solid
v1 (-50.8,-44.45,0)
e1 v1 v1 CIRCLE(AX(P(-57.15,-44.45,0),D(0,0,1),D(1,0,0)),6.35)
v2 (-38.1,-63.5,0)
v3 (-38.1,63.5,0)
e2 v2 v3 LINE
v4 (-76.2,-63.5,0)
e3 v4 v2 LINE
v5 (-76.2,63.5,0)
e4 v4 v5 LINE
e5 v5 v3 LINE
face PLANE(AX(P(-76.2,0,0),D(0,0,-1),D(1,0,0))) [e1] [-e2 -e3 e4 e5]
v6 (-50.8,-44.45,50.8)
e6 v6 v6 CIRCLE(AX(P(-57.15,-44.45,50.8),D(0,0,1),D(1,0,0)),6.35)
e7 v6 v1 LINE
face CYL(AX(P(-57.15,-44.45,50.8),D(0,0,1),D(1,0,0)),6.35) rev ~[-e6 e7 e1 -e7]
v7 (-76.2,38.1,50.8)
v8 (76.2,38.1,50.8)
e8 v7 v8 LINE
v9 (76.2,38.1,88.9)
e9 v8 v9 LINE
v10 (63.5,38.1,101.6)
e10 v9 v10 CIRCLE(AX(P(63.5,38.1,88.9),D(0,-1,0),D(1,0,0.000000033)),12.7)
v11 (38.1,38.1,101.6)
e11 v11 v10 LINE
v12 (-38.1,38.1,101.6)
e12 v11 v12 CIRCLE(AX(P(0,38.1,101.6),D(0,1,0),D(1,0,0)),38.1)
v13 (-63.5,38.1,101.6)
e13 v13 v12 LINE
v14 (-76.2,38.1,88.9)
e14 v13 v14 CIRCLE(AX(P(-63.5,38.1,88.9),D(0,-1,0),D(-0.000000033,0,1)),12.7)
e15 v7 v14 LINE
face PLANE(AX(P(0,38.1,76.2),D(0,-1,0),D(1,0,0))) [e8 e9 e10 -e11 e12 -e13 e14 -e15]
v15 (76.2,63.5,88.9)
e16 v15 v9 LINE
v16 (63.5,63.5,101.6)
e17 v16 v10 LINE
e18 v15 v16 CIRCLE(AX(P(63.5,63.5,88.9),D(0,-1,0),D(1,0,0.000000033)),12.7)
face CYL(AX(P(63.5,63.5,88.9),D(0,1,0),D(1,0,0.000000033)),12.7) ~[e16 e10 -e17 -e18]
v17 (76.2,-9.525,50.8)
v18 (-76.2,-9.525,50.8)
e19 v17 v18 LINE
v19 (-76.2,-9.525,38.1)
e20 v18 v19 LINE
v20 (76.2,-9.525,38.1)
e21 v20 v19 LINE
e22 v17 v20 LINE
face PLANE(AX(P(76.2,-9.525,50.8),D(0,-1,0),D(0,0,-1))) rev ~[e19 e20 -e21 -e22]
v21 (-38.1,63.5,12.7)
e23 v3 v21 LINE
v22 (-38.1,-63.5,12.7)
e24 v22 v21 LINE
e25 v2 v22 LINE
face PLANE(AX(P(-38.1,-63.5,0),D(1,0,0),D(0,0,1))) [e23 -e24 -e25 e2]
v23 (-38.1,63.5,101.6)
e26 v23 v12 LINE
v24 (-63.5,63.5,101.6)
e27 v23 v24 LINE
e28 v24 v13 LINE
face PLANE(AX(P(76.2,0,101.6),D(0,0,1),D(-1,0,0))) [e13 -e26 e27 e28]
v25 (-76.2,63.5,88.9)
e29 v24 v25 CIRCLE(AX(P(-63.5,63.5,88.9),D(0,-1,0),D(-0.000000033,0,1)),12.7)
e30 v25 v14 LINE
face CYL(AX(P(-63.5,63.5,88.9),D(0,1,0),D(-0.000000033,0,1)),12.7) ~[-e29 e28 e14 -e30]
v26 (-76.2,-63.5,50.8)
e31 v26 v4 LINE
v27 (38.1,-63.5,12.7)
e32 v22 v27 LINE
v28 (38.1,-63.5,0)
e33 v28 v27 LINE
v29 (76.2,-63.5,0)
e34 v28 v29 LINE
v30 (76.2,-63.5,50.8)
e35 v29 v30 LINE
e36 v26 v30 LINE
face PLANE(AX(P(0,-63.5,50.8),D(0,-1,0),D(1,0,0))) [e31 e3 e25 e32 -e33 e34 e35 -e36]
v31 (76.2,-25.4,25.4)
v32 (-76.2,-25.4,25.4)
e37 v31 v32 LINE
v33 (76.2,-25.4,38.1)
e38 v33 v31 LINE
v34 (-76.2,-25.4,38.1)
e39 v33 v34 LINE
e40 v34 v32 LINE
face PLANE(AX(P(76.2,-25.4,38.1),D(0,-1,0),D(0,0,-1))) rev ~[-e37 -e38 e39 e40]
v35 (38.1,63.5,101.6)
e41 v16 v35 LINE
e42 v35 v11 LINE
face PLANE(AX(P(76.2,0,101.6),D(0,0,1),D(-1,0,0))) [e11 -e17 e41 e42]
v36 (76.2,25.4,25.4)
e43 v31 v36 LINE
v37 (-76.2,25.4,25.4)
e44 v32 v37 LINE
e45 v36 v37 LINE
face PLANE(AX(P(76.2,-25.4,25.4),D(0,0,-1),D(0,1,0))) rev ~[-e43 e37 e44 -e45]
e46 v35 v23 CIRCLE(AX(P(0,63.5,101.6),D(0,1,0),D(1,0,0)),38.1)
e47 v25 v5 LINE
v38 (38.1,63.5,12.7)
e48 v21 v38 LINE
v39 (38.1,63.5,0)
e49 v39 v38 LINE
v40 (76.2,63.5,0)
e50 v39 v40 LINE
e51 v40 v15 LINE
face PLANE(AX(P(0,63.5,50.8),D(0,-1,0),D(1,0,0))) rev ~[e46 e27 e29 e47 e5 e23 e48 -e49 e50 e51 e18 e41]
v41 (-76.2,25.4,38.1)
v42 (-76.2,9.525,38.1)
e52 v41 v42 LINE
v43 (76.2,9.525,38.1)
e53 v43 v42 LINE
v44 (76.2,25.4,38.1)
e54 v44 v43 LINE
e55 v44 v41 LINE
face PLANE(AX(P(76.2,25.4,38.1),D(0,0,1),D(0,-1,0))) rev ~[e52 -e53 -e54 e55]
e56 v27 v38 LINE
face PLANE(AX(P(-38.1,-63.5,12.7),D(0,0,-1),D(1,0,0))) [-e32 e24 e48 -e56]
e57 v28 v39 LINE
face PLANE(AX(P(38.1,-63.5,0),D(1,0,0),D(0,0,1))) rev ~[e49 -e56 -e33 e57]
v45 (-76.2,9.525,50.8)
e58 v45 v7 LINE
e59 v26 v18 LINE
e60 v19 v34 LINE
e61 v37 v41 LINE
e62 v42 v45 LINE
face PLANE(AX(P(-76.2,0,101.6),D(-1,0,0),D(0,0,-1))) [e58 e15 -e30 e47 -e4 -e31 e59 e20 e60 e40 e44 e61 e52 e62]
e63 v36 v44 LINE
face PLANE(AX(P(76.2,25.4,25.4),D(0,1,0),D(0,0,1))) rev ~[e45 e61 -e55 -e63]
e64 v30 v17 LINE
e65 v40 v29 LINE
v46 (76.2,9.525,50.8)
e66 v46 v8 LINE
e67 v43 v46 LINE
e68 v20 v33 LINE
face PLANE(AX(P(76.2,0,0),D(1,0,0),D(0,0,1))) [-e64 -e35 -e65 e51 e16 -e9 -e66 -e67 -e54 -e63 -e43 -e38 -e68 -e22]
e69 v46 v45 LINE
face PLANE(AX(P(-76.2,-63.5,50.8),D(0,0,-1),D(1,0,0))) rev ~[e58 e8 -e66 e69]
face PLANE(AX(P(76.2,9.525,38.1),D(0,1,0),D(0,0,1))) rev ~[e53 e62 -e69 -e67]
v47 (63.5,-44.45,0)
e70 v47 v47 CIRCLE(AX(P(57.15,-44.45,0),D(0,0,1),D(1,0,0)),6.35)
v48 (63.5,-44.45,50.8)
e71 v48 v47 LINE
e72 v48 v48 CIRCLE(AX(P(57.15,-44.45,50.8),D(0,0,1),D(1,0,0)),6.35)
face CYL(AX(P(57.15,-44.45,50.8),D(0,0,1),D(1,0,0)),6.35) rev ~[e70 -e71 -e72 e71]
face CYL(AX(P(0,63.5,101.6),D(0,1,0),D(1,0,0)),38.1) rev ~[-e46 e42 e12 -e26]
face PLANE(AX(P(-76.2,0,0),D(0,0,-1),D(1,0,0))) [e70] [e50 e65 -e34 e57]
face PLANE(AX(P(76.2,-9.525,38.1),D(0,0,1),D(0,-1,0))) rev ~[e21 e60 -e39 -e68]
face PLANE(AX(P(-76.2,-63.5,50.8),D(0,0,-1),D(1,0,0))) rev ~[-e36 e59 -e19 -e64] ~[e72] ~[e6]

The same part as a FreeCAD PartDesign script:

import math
import FreeCAD as App
import Part
import Sketcher

V = App.Vector
Q = App.Units.Quantity


def add_polygon(sketch, points):
    """Adds a closed chain of lines whose ends are joined by coincident constraints."""
    first, n = sketch.GeometryCount, len(points)
    for a, b in zip(points, points[1:] + points[:1]):
        sketch.addGeometry(Part.LineSegment(App.Vector(*a, 0), App.Vector(*b, 0)), False)
    for i in range(n):
        sketch.addConstraint(Sketcher.Constraint("Coincident", first + i, 2, first + (i + 1) % n, 1))

doc = App.newDocument("Part")
body = doc.addObject("PartDesign::Body", "Body")

sketch1 = body.newObject("Sketcher::SketchObject", "Sketch")
sketch1.AttachmentSupport = (doc.getObject("XZ_Plane"), [""])
sketch1.MapMode = "FlatFace"
add_polygon(sketch1, [(-76, 0), (76, 0), (76, 102), (-76, 102)])
sketch1.addConstraint(Sketcher.Constraint("Horizontal", 0))
sketch1.addConstraint(Sketcher.Constraint("Vertical", 1))
sketch1.addConstraint(Sketcher.Constraint("Horizontal", 2))
sketch1.addConstraint(Sketcher.Constraint("Vertical", 3))
sketch1.addConstraint(Sketcher.Constraint("Symmetric", 0, 2, 3, 2, -1, 1))
sketch1.addConstraint(Sketcher.Constraint("DistanceX", 0, 1, 0, 2, Q("6 in")))
sketch1.addConstraint(Sketcher.Constraint("DistanceY", 1, 1, 1, 2, Q("4 in")))
pad1 = body.newObject("PartDesign::Pad", "Pad")
pad1.Profile = sketch1
pad1.Length = Q("5 in")
pad1.Midplane = True

sketch2 = body.newObject("Sketcher::SketchObject", "Sketch001")
sketch2.AttachmentSupport = (doc.getObject("XZ_Plane"), [""])
sketch2.MapMode = "FlatFace"
sketch2.AttachmentOffset = App.Placement(V(0, 0, 2.5 * 25.4), App.Rotation())
add_polygon(sketch2, [(-76, 102), (-76, 51), (76, 51), (76, 102)])
sketch2.addConstraint(Sketcher.Constraint("Vertical", 0))
sketch2.addConstraint(Sketcher.Constraint("Horizontal", 1))
sketch2.addConstraint(Sketcher.Constraint("Vertical", 2))
sketch2.addConstraint(Sketcher.Constraint("Horizontal", 3))
sketch2.addConstraint(Sketcher.Constraint("DistanceX", 1, 1, 1, 2, Q("6 in")))
sketch2.addConstraint(Sketcher.Constraint("DistanceY", 0, 2, 0, 1, Q("2 in")))
sketch2.addConstraint(Sketcher.Constraint("DistanceX", 0, 2, -1, 1, Q("3 in")))
sketch2.addConstraint(Sketcher.Constraint("DistanceY", -1, 1, 0, 2, Q("2 in")))
pocket1 = body.newObject("PartDesign::Pocket", "Pocket")
pocket1.Profile = sketch2
pocket1.Length = Q("4 in")

sketch3 = body.newObject("Sketcher::SketchObject", "Sketch002")
sketch3.AttachmentSupport = (doc.getObject("XZ_Plane"), [""])
sketch3.MapMode = "FlatFace"
sketch3.AttachmentOffset = App.Placement(V(0, 0, 2.5 * 25.4), App.Rotation())
add_polygon(sketch3, [(-38, 13), (-38, 0), (38, 0), (38, 13)])
sketch3.addConstraint(Sketcher.Constraint("Vertical", 0))
sketch3.addConstraint(Sketcher.Constraint("Horizontal", 1))
sketch3.addConstraint(Sketcher.Constraint("Vertical", 2))
sketch3.addConstraint(Sketcher.Constraint("Horizontal", 3))
sketch3.addConstraint(Sketcher.Constraint("Symmetric", 0, 2, 1, 2, -1, 1))
sketch3.addConstraint(Sketcher.Constraint("DistanceX", 1, 1, 1, 2, Q("3 in")))
sketch3.addConstraint(Sketcher.Constraint("DistanceY", 0, 2, 0, 1, Q("0.5 in")))
pocket2 = body.newObject("PartDesign::Pocket", "Pocket001")
pocket2.Profile = sketch3
pocket2.Length = Q("5 in")

sketch4 = body.newObject("Sketcher::SketchObject", "Sketch003")
sketch4.AttachmentSupport = (doc.getObject("YZ_Plane"), [""])
sketch4.MapMode = "FlatFace"
sketch4.AttachmentOffset = App.Placement(V(0, 0, 3 * 25.4), App.Rotation())
add_polygon(sketch4, [(10, 38), (10, 51), (-10, 51), (-10, 38), (-25, 38), (-25, 25), (25, 25), (25, 38)])
sketch4.addConstraint(Sketcher.Constraint("Vertical", 0))
sketch4.addConstraint(Sketcher.Constraint("Horizontal", 1))
sketch4.addConstraint(Sketcher.Constraint("Vertical", 2))
sketch4.addConstraint(Sketcher.Constraint("Horizontal", 3))
sketch4.addConstraint(Sketcher.Constraint("Vertical", 4))
sketch4.addConstraint(Sketcher.Constraint("Horizontal", 5))
sketch4.addConstraint(Sketcher.Constraint("Vertical", 6))
sketch4.addConstraint(Sketcher.Constraint("Horizontal", 7))
sketch4.addConstraint(Sketcher.Constraint("Symmetric", 3, 2, 6, 2, -2))
sketch4.addConstraint(Sketcher.Constraint("Equal", 3, 7))
sketch4.addConstraint(Sketcher.Constraint("Equal", 2, 4))
sketch4.addConstraint(Sketcher.Constraint("DistanceX", 5, 1, 5, 2, Q("2 in")))
sketch4.addConstraint(Sketcher.Constraint("DistanceY", 0, 1, 0, 2, Q("0.5 in")))
sketch4.addConstraint(Sketcher.Constraint("DistanceY", -1, 1, 0, 2, Q("2 in")))
sketch4.addConstraint(Sketcher.Constraint("DistanceX", 1, 2, 1, 1, Q("0.75 in")))
pocket3 = body.newObject("PartDesign::Pocket", "Pocket002")
pocket3.Profile = sketch4
pocket3.Length = Q("6 in")

sketch5 = body.newObject("Sketcher::SketchObject", "Sketch004")
sketch5.AttachmentSupport = (doc.getObject("XY_Plane"), [""])
sketch5.MapMode = "FlatFace"
sketch5.AttachmentOffset = App.Placement(V(0, 0, 2 * 25.4), App.Rotation())
sketch5.addGeometry(Part.Circle(V(-57, -44, 0), V(0, 0, 1), 6), False)
sketch5.addGeometry(Part.Circle(V(57, -44, 0), V(0, 0, 1), 6), False)
sketch5.addConstraint(Sketcher.Constraint("Equal", 0, 1))
sketch5.addConstraint(Sketcher.Constraint("Symmetric", 0, 3, 1, 3, -2))
sketch5.addConstraint(Sketcher.Constraint("Diameter", 0, Q("0.5 in")))
sketch5.addConstraint(Sketcher.Constraint("DistanceX", 0, 3, 1, 3, Q("4.5 in")))
sketch5.addConstraint(Sketcher.Constraint("DistanceY", 0, 3, -1, 1, Q("1.75 in")))
pocket4 = body.newObject("PartDesign::Pocket", "Pocket003")
pocket4.Profile = sketch5
pocket4.Length = Q("2 in")

sketch6 = body.newObject("Sketcher::SketchObject", "Sketch005")
sketch6.AttachmentSupport = (doc.getObject("XZ_Plane"), [""])
sketch6.MapMode = "FlatFace"
sketch6.AttachmentOffset = App.Placement(V(0, 0, -2.5 * 25.4), App.Rotation())
sketch6.addGeometry(Part.LineSegment(V(-76, 102, 0), V(-64, 102, 0)), False)
sketch6.addGeometry(Part.ArcOfCircle(Part.Circle(V(-63, 89, 0), V(0, 0, 1), 13), math.radians(90), math.radians(180)), False)
sketch6.addGeometry(Part.LineSegment(V(-76, 89, 0), V(-76, 102, 0)), False)
sketch6.addConstraint(Sketcher.Constraint("Tangent", 0, 2, 1, 1))
sketch6.addConstraint(Sketcher.Constraint("Tangent", 1, 2, 2, 1))
sketch6.addConstraint(Sketcher.Constraint("Coincident", 2, 2, 0, 1))
sketch6.addConstraint(Sketcher.Constraint("Horizontal", 0))
sketch6.addConstraint(Sketcher.Constraint("Vertical", 2))
sketch6.addConstraint(Sketcher.Constraint("Radius", 1, Q("0.5 in")))
sketch6.addConstraint(Sketcher.Constraint("DistanceY", -1, 1, 0, 2, Q("4 in")))
sketch6.addConstraint(Sketcher.Constraint("DistanceX", 1, 2, -1, 1, Q("3 in")))
pocket5 = body.newObject("PartDesign::Pocket", "Pocket004")
pocket5.Profile = sketch6
pocket5.Length = Q("1 in")
pocket5.Reversed = True

sketch7 = body.newObject("Sketcher::SketchObject", "Sketch006")
sketch7.AttachmentSupport = (doc.getObject("XZ_Plane"), [""])
sketch7.MapMode = "FlatFace"
sketch7.AttachmentOffset = App.Placement(V(0, 0, -2.5 * 25.4), App.Rotation())
sketch7.addGeometry(Part.ArcOfCircle(Part.Circle(V(63, 89, 0), V(0, 0, 1), 13), math.radians(0), math.radians(90)), False)
sketch7.addGeometry(Part.LineSegment(V(64, 102, 0), V(76, 102, 0)), False)
sketch7.addGeometry(Part.LineSegment(V(76, 102, 0), V(76, 89, 0)), False)
sketch7.addConstraint(Sketcher.Constraint("Tangent", 0, 2, 1, 1))
sketch7.addConstraint(Sketcher.Constraint("Coincident", 1, 2, 2, 1))
sketch7.addConstraint(Sketcher.Constraint("Tangent", 2, 2, 0, 1))
sketch7.addConstraint(Sketcher.Constraint("Horizontal", 1))
sketch7.addConstraint(Sketcher.Constraint("Vertical", 2))
sketch7.addConstraint(Sketcher.Constraint("Radius", 0, Q("0.5 in")))
sketch7.addConstraint(Sketcher.Constraint("DistanceY", -1, 1, 0, 2, Q("4 in")))
sketch7.addConstraint(Sketcher.Constraint("DistanceX", -1, 1, 1, 2, Q("3 in")))
pocket6 = body.newObject("PartDesign::Pocket", "Pocket005")
pocket6.Profile = sketch7
pocket6.Length = Q("1 in")
pocket6.Reversed = True

sketch8 = body.newObject("Sketcher::SketchObject", "Sketch007")
sketch8.AttachmentSupport = (doc.getObject("XZ_Plane"), [""])
sketch8.MapMode = "FlatFace"
sketch8.AttachmentOffset = App.Placement(V(0, 0, -2.5 * 25.4), App.Rotation())
sketch8.addGeometry(Part.ArcOfCircle(Part.Circle(V(0, 102, 0), V(0, 0, 1), 38), math.radians(180), math.radians(360)), False)
sketch8.addGeometry(Part.LineSegment(V(-38, 102, 0), V(38, 102, 0)), False)
sketch8.addConstraint(Sketcher.Constraint("Coincident", 0, 1, 1, 1))
sketch8.addConstraint(Sketcher.Constraint("Coincident", 1, 2, 0, 2))
sketch8.addConstraint(Sketcher.Constraint("Horizontal", 1))
sketch8.addConstraint(Sketcher.Constraint("PointOnObject", 0, 3, -2))
sketch8.addConstraint(Sketcher.Constraint("Radius", 0, Q("1.5 in")))
sketch8.addConstraint(Sketcher.Constraint("DistanceY", -1, 1, 0, 3, Q("4 in")))
sketch8.addConstraint(Sketcher.Constraint("DistanceY", -1, 1, 0, 1, Q("4 in")))
pocket7 = body.newObject("PartDesign::Pocket", "Pocket006")
pocket7.Profile = sketch8
pocket7.Length = Q("1 in")
pocket7.Reversed = True

doc.recompute()
